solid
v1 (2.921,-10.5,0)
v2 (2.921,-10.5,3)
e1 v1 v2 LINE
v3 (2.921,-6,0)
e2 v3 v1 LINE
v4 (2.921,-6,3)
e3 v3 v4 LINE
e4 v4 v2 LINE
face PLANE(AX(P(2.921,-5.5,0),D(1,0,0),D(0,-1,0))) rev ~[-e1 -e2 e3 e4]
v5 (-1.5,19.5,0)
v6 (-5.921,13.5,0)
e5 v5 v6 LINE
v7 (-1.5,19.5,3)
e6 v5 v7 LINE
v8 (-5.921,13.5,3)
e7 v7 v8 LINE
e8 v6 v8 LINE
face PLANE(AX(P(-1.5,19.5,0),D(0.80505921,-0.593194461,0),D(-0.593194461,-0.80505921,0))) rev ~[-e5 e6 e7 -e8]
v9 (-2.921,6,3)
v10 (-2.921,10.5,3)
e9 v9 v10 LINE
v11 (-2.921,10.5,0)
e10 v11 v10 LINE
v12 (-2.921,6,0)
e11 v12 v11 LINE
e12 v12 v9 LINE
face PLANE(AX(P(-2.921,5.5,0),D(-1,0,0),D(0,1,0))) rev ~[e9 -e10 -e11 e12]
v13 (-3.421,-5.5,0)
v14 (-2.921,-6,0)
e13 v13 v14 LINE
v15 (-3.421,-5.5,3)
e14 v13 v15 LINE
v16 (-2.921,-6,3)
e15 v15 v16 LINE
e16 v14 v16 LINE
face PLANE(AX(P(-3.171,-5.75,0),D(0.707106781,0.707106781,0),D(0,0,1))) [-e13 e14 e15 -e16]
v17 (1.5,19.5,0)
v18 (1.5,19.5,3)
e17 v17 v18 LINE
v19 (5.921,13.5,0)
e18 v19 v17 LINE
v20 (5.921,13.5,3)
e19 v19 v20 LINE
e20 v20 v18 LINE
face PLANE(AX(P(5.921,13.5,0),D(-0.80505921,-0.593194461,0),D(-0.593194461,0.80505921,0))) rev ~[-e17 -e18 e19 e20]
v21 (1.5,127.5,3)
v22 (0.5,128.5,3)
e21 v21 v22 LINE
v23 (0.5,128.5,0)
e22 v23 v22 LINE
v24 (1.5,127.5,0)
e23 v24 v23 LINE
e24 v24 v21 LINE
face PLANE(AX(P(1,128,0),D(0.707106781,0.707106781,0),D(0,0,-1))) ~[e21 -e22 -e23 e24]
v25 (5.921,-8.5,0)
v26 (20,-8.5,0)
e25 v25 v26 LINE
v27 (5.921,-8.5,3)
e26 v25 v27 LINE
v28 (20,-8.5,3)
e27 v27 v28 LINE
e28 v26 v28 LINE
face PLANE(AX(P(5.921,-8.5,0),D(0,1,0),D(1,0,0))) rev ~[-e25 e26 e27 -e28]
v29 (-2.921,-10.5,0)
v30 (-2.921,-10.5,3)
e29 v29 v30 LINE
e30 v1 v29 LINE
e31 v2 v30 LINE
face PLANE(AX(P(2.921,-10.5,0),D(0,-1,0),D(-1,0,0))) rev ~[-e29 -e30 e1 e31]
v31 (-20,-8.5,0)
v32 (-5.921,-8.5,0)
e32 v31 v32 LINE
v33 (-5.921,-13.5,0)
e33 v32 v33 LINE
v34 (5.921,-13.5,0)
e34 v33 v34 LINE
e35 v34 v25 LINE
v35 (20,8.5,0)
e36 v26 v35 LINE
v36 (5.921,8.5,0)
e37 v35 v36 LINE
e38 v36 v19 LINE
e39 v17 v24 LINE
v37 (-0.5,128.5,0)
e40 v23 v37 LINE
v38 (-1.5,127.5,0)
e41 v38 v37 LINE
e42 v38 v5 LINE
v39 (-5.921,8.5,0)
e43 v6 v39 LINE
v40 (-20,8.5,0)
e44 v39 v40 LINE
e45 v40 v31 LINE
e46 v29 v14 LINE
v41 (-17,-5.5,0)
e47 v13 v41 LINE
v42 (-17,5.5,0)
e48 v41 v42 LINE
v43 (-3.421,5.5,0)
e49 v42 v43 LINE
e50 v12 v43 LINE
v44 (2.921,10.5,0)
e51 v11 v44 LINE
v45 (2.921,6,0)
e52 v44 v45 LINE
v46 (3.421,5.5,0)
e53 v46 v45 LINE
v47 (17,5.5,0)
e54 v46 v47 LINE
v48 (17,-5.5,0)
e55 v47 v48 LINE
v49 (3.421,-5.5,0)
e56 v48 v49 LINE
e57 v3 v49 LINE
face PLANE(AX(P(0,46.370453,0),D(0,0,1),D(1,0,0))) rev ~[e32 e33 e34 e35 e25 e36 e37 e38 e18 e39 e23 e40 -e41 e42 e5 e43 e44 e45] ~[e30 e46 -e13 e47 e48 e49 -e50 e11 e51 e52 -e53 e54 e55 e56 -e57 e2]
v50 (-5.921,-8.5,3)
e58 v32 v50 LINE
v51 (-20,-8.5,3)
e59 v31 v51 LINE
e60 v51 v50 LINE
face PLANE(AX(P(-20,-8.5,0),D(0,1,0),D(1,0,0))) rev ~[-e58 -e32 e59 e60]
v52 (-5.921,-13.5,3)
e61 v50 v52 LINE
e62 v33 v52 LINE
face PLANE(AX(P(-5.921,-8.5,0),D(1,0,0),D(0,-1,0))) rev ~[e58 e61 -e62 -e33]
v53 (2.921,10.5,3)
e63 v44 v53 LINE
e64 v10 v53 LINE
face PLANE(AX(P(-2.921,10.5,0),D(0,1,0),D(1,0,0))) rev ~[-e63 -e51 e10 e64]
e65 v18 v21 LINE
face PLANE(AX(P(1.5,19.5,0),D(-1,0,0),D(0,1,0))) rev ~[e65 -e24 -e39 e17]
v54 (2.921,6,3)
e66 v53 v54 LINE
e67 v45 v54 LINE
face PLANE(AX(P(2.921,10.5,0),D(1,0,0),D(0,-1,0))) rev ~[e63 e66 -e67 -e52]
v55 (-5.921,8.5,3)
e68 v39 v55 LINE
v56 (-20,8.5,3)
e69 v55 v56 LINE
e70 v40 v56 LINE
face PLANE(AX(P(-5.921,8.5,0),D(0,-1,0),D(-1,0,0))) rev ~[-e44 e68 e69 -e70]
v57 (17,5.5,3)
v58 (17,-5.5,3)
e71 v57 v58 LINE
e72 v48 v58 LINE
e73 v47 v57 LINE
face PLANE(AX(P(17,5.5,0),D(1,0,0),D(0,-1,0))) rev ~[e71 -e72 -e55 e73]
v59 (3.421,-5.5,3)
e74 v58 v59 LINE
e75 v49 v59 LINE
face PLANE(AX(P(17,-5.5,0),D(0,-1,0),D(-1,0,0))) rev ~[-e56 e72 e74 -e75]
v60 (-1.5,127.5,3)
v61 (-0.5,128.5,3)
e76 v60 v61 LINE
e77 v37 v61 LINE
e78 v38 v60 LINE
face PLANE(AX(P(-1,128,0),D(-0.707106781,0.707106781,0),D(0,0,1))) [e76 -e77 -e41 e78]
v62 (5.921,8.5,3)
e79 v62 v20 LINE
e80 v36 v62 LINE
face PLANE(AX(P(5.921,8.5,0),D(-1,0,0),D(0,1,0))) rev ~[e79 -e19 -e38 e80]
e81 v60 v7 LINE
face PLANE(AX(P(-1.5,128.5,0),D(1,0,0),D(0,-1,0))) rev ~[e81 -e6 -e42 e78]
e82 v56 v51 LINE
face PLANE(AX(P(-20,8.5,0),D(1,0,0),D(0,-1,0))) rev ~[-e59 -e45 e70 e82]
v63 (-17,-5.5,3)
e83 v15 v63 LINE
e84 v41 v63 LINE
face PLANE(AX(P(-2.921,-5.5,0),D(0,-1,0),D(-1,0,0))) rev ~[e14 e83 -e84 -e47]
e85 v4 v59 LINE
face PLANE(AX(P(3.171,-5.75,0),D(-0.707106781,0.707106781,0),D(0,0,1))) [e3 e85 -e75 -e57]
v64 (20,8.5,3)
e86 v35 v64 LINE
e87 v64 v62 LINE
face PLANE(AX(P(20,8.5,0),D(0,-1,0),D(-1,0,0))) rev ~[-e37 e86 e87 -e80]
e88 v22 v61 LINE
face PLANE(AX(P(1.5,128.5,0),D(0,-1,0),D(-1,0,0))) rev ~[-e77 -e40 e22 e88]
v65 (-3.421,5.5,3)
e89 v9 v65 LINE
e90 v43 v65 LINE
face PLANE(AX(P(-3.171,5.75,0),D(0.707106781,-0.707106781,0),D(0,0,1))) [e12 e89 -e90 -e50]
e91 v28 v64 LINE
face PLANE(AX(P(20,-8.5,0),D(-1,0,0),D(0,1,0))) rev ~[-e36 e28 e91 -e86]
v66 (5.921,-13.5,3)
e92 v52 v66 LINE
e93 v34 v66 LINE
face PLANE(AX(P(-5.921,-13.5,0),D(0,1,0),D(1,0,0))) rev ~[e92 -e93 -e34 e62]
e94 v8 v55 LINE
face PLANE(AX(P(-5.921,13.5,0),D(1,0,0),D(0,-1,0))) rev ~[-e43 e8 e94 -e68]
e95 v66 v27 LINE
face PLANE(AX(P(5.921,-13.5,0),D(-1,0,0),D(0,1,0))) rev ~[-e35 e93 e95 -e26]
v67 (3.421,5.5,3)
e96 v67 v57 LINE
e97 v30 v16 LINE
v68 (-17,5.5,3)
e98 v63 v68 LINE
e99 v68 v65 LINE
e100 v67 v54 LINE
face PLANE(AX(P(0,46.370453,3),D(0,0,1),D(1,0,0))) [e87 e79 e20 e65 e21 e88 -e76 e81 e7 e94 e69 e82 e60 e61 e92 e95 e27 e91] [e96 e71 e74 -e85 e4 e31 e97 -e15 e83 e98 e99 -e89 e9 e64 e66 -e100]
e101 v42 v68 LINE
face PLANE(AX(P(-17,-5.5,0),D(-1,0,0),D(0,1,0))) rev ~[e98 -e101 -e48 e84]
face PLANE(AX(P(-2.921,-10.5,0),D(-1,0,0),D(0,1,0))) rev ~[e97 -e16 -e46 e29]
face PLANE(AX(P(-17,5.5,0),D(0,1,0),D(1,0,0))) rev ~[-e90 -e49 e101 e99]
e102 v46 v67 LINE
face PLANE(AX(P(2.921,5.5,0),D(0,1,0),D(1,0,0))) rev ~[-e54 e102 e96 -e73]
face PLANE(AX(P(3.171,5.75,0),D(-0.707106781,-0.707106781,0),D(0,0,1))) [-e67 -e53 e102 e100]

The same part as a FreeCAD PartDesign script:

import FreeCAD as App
import Part
import Sketcher


def edges_at(feature, points):
    """Names of the edges that pass closest to the given points."""
    edges = feature.Shape.Edges
    near = lambda p: min(range(len(edges)), key=lambda i: edges[i].distToShape(Part.Vertex(*p))[0])
    return sorted({f"Edge{near(p) + 1}" for p in points})


def add_polygon(sketch, points):
    """Adds a closed chain of lines whose ends are joined by coincident constraints."""
    first, n = sketch.GeometryCount, len(points)
    for a, b in zip(points, points[1:] + points[:1]):
        sketch.addGeometry(Part.LineSegment(App.Vector(*a, 0), App.Vector(*b, 0)), False)
    for i in range(n):
        sketch.addConstraint(Sketcher.Constraint("Coincident", first + i, 2, first + (i + 1) % n, 1))

doc = App.newDocument("Part")
body = doc.addObject("PartDesign::Body", "Body")

# Sketch on XY plane
sketch1 = body.newObject("Sketcher::SketchObject", "Sketch")
sketch1.AttachmentSupport = (doc.getObject("XY_Plane"), [""])
sketch1.MapMode = "FlatFace"
add_polygon(sketch1, [(-5.9, -13.5), (5.9, -13.5), (5.9, -8.5), (20, -8.5), (20, 8.5), (5.9, 8.5), (5.9, 13.5), (1.5, 19.5), (1.5, 128.5), (-1.5, 128.5), (-1.5, 19.5), (-5.9, 13.5), (-5.9, 8.5), (-20, 8.5), (-20, -8.5), (-5.9, -8.5)])  # lines 0-15
add_polygon(sketch1, [(2.9, -5.5), (2.9, -10.5), (-2.9, -10.5), (-2.9, -5.5), (-17, -5.5), (-17, 5.5), (-2.9, 5.5), (-2.9, 10.5), (2.9, 10.5), (2.9, 5.5), (17, 5.5), (17, -5.5)])  # lines 16-27
sketch1.addConstraint([
    Sketcher.Constraint("Horizontal", 0),
    Sketcher.Constraint("Vertical", 1),
    Sketcher.Constraint("Horizontal", 2),
    Sketcher.Constraint("Vertical", 3),
    Sketcher.Constraint("Horizontal", 4),
    Sketcher.Constraint("Vertical", 5),
    Sketcher.Constraint("Vertical", 7),
    Sketcher.Constraint("Horizontal", 8),
    Sketcher.Constraint("Vertical", 9),
    Sketcher.Constraint("Vertical", 11),
    Sketcher.Constraint("Horizontal", 12),
    Sketcher.Constraint("Vertical", 13),
    Sketcher.Constraint("Horizontal", 14),
    Sketcher.Constraint("Vertical", 15),
    Sketcher.Constraint("Vertical", 16),
    Sketcher.Constraint("Horizontal", 17),
    Sketcher.Constraint("Vertical", 18),
    Sketcher.Constraint("Horizontal", 19),
    Sketcher.Constraint("Vertical", 20),
    Sketcher.Constraint("Horizontal", 21),
    Sketcher.Constraint("Vertical", 22),
    Sketcher.Constraint("Horizontal", 23),
    Sketcher.Constraint("Vertical", 24),
    Sketcher.Constraint("Horizontal", 25),
    Sketcher.Constraint("Vertical", 26),
    Sketcher.Constraint("Horizontal", 27),
    Sketcher.Constraint("Symmetric", 0, 2, 10, 2, -1, 1),
    Sketcher.Constraint("Symmetric", 2, 2, 12, 2, -1, 1),
    Sketcher.Constraint("Symmetric", 4, 2, 14, 2, -1, 1),
    Sketcher.Constraint("Symmetric", 16, 2, 22, 2, -1, 1),
    Sketcher.Constraint("Symmetric", 18, 2, 24, 2, -1, 1),
    Sketcher.Constraint("Symmetric", 20, 2, 26, 2, -1, 1),
    Sketcher.Constraint("Symmetric", 6, 2, 9, 2, -2),
    Sketcher.Constraint("Symmetric", 5, 2, 10, 2, -2),
    Sketcher.Constraint("Symmetric", 21, 2, 24, 2, -2),
    Sketcher.Constraint("Horizontal", 4, 2, 11, 2),
    Sketcher.Constraint("Equal", 14, 19),
    Sketcher.Constraint("Equal", 15, 16),
    Sketcher.Constraint("DistanceX", 8, 2, 8, 1, 3.0),
    Sketcher.Constraint("DistanceY", 1, 1, 1, 2, 5.0),
    Sketcher.Constraint("DistanceY", 3, 1, 3, 2, 17.0),
    Sketcher.Constraint("DistanceY", 7, 1, 7, 2, 109.0),
    Sketcher.Constraint("DistanceY", 20, 1, 20, 2, 11.0),
    Sketcher.Constraint("DistanceX", -1, 1, 2, 2, 20.0),
    Sketcher.Constraint("DistanceX", 19, 2, -1, 1, 17.0),
    Sketcher.Constraint("DistanceY", 5, 2, 6, 2, 6.0),
    Sketcher.Constraint("DistanceX", 0, 1, 0, 2, 11.842),
])
pad1 = body.newObject("PartDesign::Pad", "Pad")
pad1.Profile = sketch1
pad1.Length = 3
doc.recompute()

chamfer = body.newObject("PartDesign::Chamfer", "Chamfer")
chamfer.Base = (pad1, edges_at(pad1, [
    (-2.921, 5.5, 1.5),
    (2.921, 5.5, 1.5),
    (-2.921, -5.5, 1.5),
    (2.921, -5.5, 1.5),
]))
chamfer.Size = 0.5
doc.recompute()

chamfer2 = body.newObject("PartDesign::Chamfer", "Chamfer001")
chamfer2.Base = (chamfer, edges_at(chamfer, [(1.5, 128.5, 1.5), (-1.5, 128.5, 1.5)]))
chamfer2.Size = 1

doc.recompute()
